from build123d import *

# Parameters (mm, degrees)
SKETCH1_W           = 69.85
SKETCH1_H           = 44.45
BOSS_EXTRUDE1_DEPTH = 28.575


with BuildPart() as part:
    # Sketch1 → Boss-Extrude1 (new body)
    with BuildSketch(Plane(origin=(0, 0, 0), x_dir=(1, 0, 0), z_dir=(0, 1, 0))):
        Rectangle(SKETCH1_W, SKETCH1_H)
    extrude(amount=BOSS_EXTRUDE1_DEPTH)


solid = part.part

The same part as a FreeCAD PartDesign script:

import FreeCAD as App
import Part
import Sketcher

V = App.Vector
Q = App.Units.Quantity


def add_polygon(sketch, points):
    """Adds a closed chain of lines whose ends are joined by coincident constraints."""
    first, n = sketch.GeometryCount, len(points)
    for a, b in zip(points, points[1:] + points[:1]):
        sketch.addGeometry(Part.LineSegment(App.Vector(*a, 0), App.Vector(*b, 0)), False)
    for i in range(n):
        sketch.addConstraint(Sketcher.Constraint("Coincident", first + i, 2, first + (i + 1) % n, 1))

doc = App.newDocument("Part")
body = doc.addObject("PartDesign::Body", "Body")

# Sketch on XZ plane
sketch1 = body.newObject("Sketcher::SketchObject", "Sketch")
sketch1.AttachmentSupport = (doc.getObject("XZ_Plane"), [""])
sketch1.MapMode = "FlatFace"
add_polygon(sketch1, [(-35, -22), (-35, 22), (35, 22), (35, -22)])  # lines 0-3
sketch1.addConstraint([
    Sketcher.Constraint("Vertical", 0),
    Sketcher.Constraint("Horizontal", 1),
    Sketcher.Constraint("Vertical", 2),
    Sketcher.Constraint("Horizontal", 3),
    Sketcher.Constraint("Symmetric", 0, 2, 2, 2, -1, 1),
    Sketcher.Constraint("DistanceX", 1, 1, 1, 2, Q("2.75 in")),
    Sketcher.Constraint("DistanceY", 0, 1, 0, 2, Q("1.75 in")),
])
pad1 = body.newObject("PartDesign::Pad", "Pad")
pad1.Profile = sketch1
pad1.Length = Q("1.125 in")
pad1.Reversed = True

doc.recompute()
